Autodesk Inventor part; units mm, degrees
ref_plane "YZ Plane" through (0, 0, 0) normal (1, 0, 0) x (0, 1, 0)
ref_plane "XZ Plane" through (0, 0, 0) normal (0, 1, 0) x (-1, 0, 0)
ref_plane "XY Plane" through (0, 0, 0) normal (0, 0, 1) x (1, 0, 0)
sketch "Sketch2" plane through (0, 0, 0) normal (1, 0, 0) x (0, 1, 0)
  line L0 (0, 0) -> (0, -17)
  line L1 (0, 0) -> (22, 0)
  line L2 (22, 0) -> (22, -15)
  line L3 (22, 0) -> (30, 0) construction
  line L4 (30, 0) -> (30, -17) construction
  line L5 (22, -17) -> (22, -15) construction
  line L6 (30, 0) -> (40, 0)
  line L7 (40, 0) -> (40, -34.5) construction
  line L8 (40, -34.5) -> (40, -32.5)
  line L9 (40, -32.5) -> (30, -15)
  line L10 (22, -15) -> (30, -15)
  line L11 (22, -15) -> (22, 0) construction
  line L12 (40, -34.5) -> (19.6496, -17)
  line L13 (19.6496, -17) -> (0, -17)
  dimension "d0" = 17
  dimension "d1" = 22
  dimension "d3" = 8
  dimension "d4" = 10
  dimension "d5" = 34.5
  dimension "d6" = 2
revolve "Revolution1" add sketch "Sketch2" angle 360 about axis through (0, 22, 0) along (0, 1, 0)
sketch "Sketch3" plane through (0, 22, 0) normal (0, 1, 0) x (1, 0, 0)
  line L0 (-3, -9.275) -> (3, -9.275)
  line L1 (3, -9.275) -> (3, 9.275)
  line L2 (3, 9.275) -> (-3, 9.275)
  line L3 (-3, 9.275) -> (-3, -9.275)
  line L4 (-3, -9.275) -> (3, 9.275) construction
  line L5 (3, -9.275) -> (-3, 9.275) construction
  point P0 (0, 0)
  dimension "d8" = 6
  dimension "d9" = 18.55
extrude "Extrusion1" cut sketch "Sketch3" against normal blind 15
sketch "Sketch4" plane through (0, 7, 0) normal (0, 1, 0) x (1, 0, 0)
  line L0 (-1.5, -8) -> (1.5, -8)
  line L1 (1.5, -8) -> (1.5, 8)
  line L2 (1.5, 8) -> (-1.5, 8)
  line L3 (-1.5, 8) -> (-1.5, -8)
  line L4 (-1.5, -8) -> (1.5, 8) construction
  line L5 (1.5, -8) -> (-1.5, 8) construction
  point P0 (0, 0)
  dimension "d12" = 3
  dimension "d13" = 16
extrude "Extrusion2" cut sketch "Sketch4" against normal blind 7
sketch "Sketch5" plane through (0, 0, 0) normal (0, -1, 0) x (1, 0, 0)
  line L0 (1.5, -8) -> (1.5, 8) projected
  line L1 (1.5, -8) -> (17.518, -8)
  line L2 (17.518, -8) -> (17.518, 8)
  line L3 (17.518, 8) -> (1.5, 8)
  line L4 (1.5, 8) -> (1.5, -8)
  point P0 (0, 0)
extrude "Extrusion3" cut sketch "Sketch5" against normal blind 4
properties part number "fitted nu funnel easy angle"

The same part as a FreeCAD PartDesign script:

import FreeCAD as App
import Part
import Sketcher
from FreeCAD import Vector


def add_polygon(sketch, points):
    """Adds a closed chain of lines whose ends are joined by coincident constraints."""
    first, n = sketch.GeometryCount, len(points)
    for a, b in zip(points, points[1:] + points[:1]):
        sketch.addGeometry(Part.LineSegment(App.Vector(*a, 0), App.Vector(*b, 0)), False)
    for i in range(n):
        sketch.addConstraint(Sketcher.Constraint("Coincident", first + i, 2, first + (i + 1) % n, 1))

doc = App.newDocument("Part")
body = doc.addObject("PartDesign::Body", "Body")

# Sketch on YZ plane
sketch1 = body.newObject("Sketcher::SketchObject", "Sketch")
sketch1.AttachmentSupport = (doc.getObject("YZ_Plane"), [""])
sketch1.MapMode = "FlatFace"
add_polygon(sketch1, [(22, 0), (0, 0), (0, -17), (19.6, -17), (40, -34.5), (40, -32.5), (30, -15), (22, -15)])  # lines 0-7
sketch1.addConstraint([
    Sketcher.Constraint("Horizontal", 0),
    Sketcher.Constraint("Vertical", 1),
    Sketcher.Constraint("Horizontal", 2),
    Sketcher.Constraint("Vertical", 4),
    Sketcher.Constraint("Horizontal", 6),
    Sketcher.Constraint("Vertical", 7),
    Sketcher.Constraint("Coincident", 0, 2, -1, 1),
    Sketcher.Constraint("DistanceX", 0, 2, 0, 1, 22.0),
    Sketcher.Constraint("DistanceX", 6, 2, 6, 1, 8.0),
    Sketcher.Constraint("DistanceY", 1, 2, 1, 1, 17.0),
    Sketcher.Constraint("DistanceY", 4, 1, 4, 2, 2.0),
    Sketcher.Constraint("DistanceY", 2, 2, 5, 2, 2.0),
    Sketcher.Constraint("DistanceX", 5, 2, 4, 2, 10.0),
    Sketcher.Constraint("DistanceY", 3, 2, -1, 1, 34.5),
    Sketcher.Constraint("Distance", 3, 26.84),
])
revolution = body.newObject("PartDesign::Revolution", "Revolution")
revolution.Profile = sketch1
revolution.ReferenceAxis = (sketch1, ["H_Axis"])
revolution.Angle = 360

# Sketch on XZ plane
sketch2 = body.newObject("Sketcher::SketchObject", "Sketch001")
sketch2.AttachmentSupport = (doc.getObject("XZ_Plane"), [""])
sketch2.MapMode = "FlatFace"
sketch2.AttachmentOffset = App.Placement(Vector(0, 0, -22), App.Rotation())
add_polygon(sketch2, [(-3, -9), (-3, 9), (3, 9), (3, -9)])  # lines 0-3
sketch2.addConstraint([
    Sketcher.Constraint("Vertical", 0),
    Sketcher.Constraint("Horizontal", 1),
    Sketcher.Constraint("Vertical", 2),
    Sketcher.Constraint("Horizontal", 3),
    Sketcher.Constraint("Symmetric", 0, 2, 2, 2, -1, 1),
    Sketcher.Constraint("DistanceX", 1, 1, 1, 2, 6.0),
    Sketcher.Constraint("DistanceY", 0, 1, 0, 2, 18.55),
])
pocket1 = body.newObject("PartDesign::Pocket", "Pocket")
pocket1.Profile = sketch2
pocket1.Length = 15
pocket1.Reversed = True

# Sketch on XZ plane
sketch3 = body.newObject("Sketcher::SketchObject", "Sketch002")
sketch3.AttachmentSupport = (doc.getObject("XZ_Plane"), [""])
sketch3.MapMode = "FlatFace"
sketch3.AttachmentOffset = App.Placement(Vector(0, 0, -7), App.Rotation())
add_polygon(sketch3, [(-1.5, -8), (-1.5, 8), (1.5, 8), (1.5, -8)])  # lines 0-3
sketch3.addConstraint([
    Sketcher.Constraint("Vertical", 0),
    Sketcher.Constraint("Horizontal", 1),
    Sketcher.Constraint("Vertical", 2),
    Sketcher.Constraint("Horizontal", 3),
    Sketcher.Constraint("Symmetric", 0, 2, 2, 2, -1, 1),
    Sketcher.Constraint("DistanceX", 1, 1, 1, 2, 3.0),
    Sketcher.Constraint("DistanceY", 0, 1, 0, 2, 16.0),
])
pocket2 = body.newObject("PartDesign::Pocket", "Pocket001")
pocket2.Profile = sketch3
pocket2.Length = 7
pocket2.Reversed = True

# Sketch on XZ plane
sketch4 = body.newObject("Sketcher::SketchObject", "Sketch003")
sketch4.AttachmentSupport = (doc.getObject("XZ_Plane"), [""])
sketch4.MapMode = "FlatFace"
add_polygon(sketch4, [(2, 8), (2, -8), (18, -8), (18, 8)])  # lines 0-3
sketch4.addConstraint([
    Sketcher.Constraint("Vertical", 0),
    Sketcher.Constraint("Horizontal", 1),
    Sketcher.Constraint("Vertical", 2),
    Sketcher.Constraint("Horizontal", 3),
    Sketcher.Constraint("DistanceY", 0, 2, 0, 1, 16.0),
    Sketcher.Constraint("DistanceY", 0, 2, -1, 1, 8.0),
    Sketcher.Constraint("DistanceX", -1, 1, 0, 2, 1.5),
    Sketcher.Constraint("DistanceX", 1, 1, 1, 2, 16.018),
])
pocket3 = body.newObject("PartDesign::Pocket", "Pocket002")
pocket3.Profile = sketch4
pocket3.Length = 4

doc.recompute()
